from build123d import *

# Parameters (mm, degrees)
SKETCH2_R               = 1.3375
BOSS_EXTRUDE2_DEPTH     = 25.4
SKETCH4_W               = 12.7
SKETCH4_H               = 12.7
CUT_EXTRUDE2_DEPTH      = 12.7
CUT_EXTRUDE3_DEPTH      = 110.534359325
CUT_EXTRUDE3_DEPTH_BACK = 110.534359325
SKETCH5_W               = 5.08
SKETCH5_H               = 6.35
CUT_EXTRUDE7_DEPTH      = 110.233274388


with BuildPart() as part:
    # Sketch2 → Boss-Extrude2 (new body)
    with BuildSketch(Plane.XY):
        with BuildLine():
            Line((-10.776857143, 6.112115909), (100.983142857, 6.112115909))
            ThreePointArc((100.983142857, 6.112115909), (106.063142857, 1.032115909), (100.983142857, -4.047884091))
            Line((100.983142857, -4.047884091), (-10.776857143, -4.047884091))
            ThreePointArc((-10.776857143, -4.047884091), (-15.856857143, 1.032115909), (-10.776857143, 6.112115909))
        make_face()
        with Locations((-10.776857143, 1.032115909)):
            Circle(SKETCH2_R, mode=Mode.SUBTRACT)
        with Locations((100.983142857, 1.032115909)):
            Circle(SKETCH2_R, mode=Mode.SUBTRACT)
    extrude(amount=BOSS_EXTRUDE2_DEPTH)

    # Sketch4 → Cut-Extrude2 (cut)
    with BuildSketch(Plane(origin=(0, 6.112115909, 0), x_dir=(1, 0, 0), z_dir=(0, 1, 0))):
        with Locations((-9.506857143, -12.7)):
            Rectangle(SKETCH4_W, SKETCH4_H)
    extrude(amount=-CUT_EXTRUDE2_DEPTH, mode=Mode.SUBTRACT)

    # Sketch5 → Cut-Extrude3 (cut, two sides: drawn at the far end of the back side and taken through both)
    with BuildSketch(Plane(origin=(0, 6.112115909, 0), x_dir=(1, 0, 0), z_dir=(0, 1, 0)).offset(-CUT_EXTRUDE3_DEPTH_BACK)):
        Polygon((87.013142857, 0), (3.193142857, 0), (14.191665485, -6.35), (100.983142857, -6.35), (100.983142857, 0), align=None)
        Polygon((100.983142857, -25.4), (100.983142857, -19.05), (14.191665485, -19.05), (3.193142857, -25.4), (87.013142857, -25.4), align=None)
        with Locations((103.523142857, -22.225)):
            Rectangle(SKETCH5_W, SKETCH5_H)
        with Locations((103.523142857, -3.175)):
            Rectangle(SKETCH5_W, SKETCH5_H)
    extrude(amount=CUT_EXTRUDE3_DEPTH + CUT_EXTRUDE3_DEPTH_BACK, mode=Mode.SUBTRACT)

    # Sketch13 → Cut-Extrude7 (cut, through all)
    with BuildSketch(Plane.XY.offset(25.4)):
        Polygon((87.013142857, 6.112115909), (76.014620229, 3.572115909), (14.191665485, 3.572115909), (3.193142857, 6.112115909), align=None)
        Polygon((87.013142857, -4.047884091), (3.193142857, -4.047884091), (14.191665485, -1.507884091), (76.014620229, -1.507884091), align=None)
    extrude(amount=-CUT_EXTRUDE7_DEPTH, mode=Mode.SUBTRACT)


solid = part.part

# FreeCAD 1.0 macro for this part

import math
import FreeCAD as App
import Part
import Sketcher
from FreeCAD import Vector
Q = App.Units.Quantity


def add_polygon(sketch, points):
    """Adds a closed chain of lines whose ends are joined by coincident constraints."""
    first, n = sketch.GeometryCount, len(points)
    for a, b in zip(points, points[1:] + points[:1]):
        sketch.addGeometry(Part.LineSegment(App.Vector(*a, 0), App.Vector(*b, 0)), False)
    for i in range(n):
        sketch.addConstraint(Sketcher.Constraint("Coincident", first + i, 2, first + (i + 1) % n, 1))

doc = App.newDocument("Part")
body = doc.addObject("PartDesign::Body", "Body")

sketch1 = body.newObject("Sketcher::SketchObject", "Sketch")
sketch1.AttachmentSupport = (doc.getObject("XY_Plane"), [""])
sketch1.MapMode = "FlatFace"
sketch1.addGeometry(Part.LineSegment(Vector(101, 6.1, 0), Vector(-10.8, 6.1, 0)), False)
sketch1.addGeometry(Part.ArcOfCircle(Part.Circle(Vector(-10.8, 1, 0), Vector(0, 0, 1), 5.1), math.radians(90), math.radians(270)), False)
sketch1.addGeometry(Part.LineSegment(Vector(-10.8, -4, 0), Vector(101, -4, 0)), False)
sketch1.addGeometry(Part.ArcOfCircle(Part.Circle(Vector(101, 1, 0), Vector(0, 0, 1), 5.1), math.radians(-90), math.radians(90)), False)
sketch1.addGeometry(Part.Circle(Vector(101, 1, 0), Vector(0, 0, 1), 1.3), False)
sketch1.addGeometry(Part.Circle(Vector(-10.8, 1, 0), Vector(0, 0, 1), 1.3), False)
sketch1.addConstraint(Sketcher.Constraint("Tangent", 0, 2, 1, 1))
sketch1.addConstraint(Sketcher.Constraint("Tangent", 1, 2, 2, 1))
sketch1.addConstraint(Sketcher.Constraint("Tangent", 2, 2, 3, 1))
sketch1.addConstraint(Sketcher.Constraint("Tangent", 3, 2, 0, 1))
sketch1.addConstraint(Sketcher.Constraint("Horizontal", 0))
sketch1.addConstraint(Sketcher.Constraint("Horizontal", 2))
sketch1.addConstraint(Sketcher.Constraint("Coincident", 4, 3, 3, 3))
sketch1.addConstraint(Sketcher.Constraint("Coincident", 5, 3, 1, 3))
sketch1.addConstraint(Sketcher.Constraint("Equal", 4, 5))
sketch1.addConstraint(Sketcher.Constraint("Radius", 1, Q("0.2 in")))
sketch1.addConstraint(Sketcher.Constraint("DistanceX", 0, 2, 0, 1, Q("4.4 in")))
sketch1.addConstraint(Sketcher.Constraint("Diameter", 4, 2.675))
sketch1.addConstraint(Sketcher.Constraint("DistanceX", 1, 3, -1, 1, 10.776857))
sketch1.addConstraint(Sketcher.Constraint("DistanceY", -1, 1, 1, 3, 1.032116))
pad1 = body.newObject("PartDesign::Pad", "Pad")
pad1.Profile = sketch1
pad1.Length = Q("1 in")

sketch2 = body.newObject("Sketcher::SketchObject", "Sketch001")
sketch2.AttachmentSupport = (doc.getObject("XZ_Plane"), [""])
sketch2.MapMode = "FlatFace"
sketch2.AttachmentOffset = App.Placement(Vector(0, 0, -6.112116), App.Rotation())
add_polygon(sketch2, [(-16, 6), (-16, 19), (-3, 19), (-3, 6)])
sketch2.addConstraint(Sketcher.Constraint("Vertical", 0))
sketch2.addConstraint(Sketcher.Constraint("Horizontal", 1))
sketch2.addConstraint(Sketcher.Constraint("Vertical", 2))
sketch2.addConstraint(Sketcher.Constraint("Horizontal", 3))
sketch2.addConstraint(Sketcher.Constraint("Equal", 3, 0))
sketch2.addConstraint(Sketcher.Constraint("DistanceX", 1, 1, 1, 2, Q("0.5 in")))
sketch2.addConstraint(Sketcher.Constraint("DistanceY", -1, 1, 0, 2, Q("0.75 in")))
sketch2.addConstraint(Sketcher.Constraint("DistanceX", 0, 2, -1, 1, 15.856857))
pocket1 = body.newObject("PartDesign::Pocket", "Pocket")
pocket1.Profile = sketch2
pocket1.Length = Q("0.5 in")
pocket1.Reversed = True

sketch3 = body.newObject("Sketcher::SketchObject", "Sketch002")
sketch3.AttachmentSupport = (doc.getObject("XZ_Plane"), [""])
sketch3.MapMode = "FlatFace"
sketch3.AttachmentOffset = App.Placement(Vector(0, 0, -6.112116), App.Rotation())
add_polygon(sketch3, [(3, 0), (14, 6), (106, 6), (106, 0)])
add_polygon(sketch3, [(14, 19), (3, 25), (106, 25), (106, 19)])
sketch3.addConstraint(Sketcher.Constraint("Horizontal", 1))
sketch3.addConstraint(Sketcher.Constraint("Vertical", 2))
sketch3.addConstraint(Sketcher.Constraint("Horizontal", 3))
sketch3.addConstraint(Sketcher.Constraint("Horizontal", 5))
sketch3.addConstraint(Sketcher.Constraint("Vertical", 6))
sketch3.addConstraint(Sketcher.Constraint("Horizontal", 7))
sketch3.addConstraint(Sketcher.Constraint("PointOnObject", 2, 2, -1))
sketch3.addConstraint(Sketcher.Constraint("Vertical", 3, 2, 4, 2))
sketch3.addConstraint(Sketcher.Constraint("Vertical", 2, 2, 5, 2))
sketch3.addConstraint(Sketcher.Constraint("Vertical", 0, 2, 7, 2))
sketch3.addConstraint(Sketcher.Constraint("Equal", 2, 6))
sketch3.addConstraint(Sketcher.Constraint("DistanceY", -1, 1, 4, 2, Q("1 in")))
sketch3.addConstraint(Sketcher.Constraint("Angle", 0, Q("30 deg")))
sketch3.addConstraint(Sketcher.Constraint("Distance", 0, Q("0.5 in")))
sketch3.addConstraint(Sketcher.Constraint("DistanceX", 3, 2, 3, 1, Q("4.05 in")))
sketch3.addConstraint(Sketcher.Constraint("DistanceX", -1, 1, 0, 2, 14.191665))
pocket2 = body.newObject("PartDesign::Pocket", "Pocket001")
pocket2.Profile = sketch3
pocket2.Type = "ThroughAll"
pocket2.Midplane = True

sketch4 = body.newObject("Sketcher::SketchObject", "Sketch003")
sketch4.AttachmentSupport = (doc.getObject("XY_Plane"), [""])
sketch4.MapMode = "FlatFace"
sketch4.AttachmentOffset = App.Placement(Vector(0, 0, 1 * 25.4), App.Rotation())
add_polygon(sketch4, [(76, 4), (87, 6), (3, 6), (14, 4)])
add_polygon(sketch4, [(3, -4), (87, -4), (76, -2), (14, -2)])
sketch4.addConstraint(Sketcher.Constraint("Horizontal", 1))
sketch4.addConstraint(Sketcher.Constraint("Horizontal", 3))
sketch4.addConstraint(Sketcher.Constraint("Horizontal", 4))
sketch4.addConstraint(Sketcher.Constraint("Horizontal", 6))
sketch4.addConstraint(Sketcher.Constraint("Parallel", 2, 5))
sketch4.addConstraint(Sketcher.Constraint("Parallel", 0, 7))
sketch4.addConstraint(Sketcher.Constraint("Vertical", 0, 2, 4, 2))
sketch4.addConstraint(Sketcher.Constraint("Vertical", 3, 2, 5, 2))
sketch4.addConstraint(Sketcher.Constraint("Vertical", 2, 2, 6, 2))
sketch4.addConstraint(Sketcher.Constraint("Vertical", 1, 2, 7, 2))
sketch4.addConstraint(Sketcher.Constraint("DistanceX", 1, 2, 1, 1, Q("3.3 in")))
sketch4.addConstraint(Sketcher.Constraint("DistanceY", 2, 2, 1, 2, Q("0.1 in")))
sketch4.addConstraint(Sketcher.Constraint("DistanceY", 4, 2, 0, 2, Q("0.4 in")))
sketch4.addConstraint(Sketcher.Constraint("DistanceX", 3, 1, 3, 2, 61.822955))
sketch4.addConstraint(Sketcher.Constraint("DistanceX", -1, 1, 3, 2, 76.01462))
sketch4.addConstraint(Sketcher.Constraint("DistanceY", -1, 1, 0, 2, 6.112116))
pocket3 = body.newObject("PartDesign::Pocket", "Pocket002")
pocket3.Profile = sketch4
pocket3.Type = "ThroughAll"

doc.recompute()
